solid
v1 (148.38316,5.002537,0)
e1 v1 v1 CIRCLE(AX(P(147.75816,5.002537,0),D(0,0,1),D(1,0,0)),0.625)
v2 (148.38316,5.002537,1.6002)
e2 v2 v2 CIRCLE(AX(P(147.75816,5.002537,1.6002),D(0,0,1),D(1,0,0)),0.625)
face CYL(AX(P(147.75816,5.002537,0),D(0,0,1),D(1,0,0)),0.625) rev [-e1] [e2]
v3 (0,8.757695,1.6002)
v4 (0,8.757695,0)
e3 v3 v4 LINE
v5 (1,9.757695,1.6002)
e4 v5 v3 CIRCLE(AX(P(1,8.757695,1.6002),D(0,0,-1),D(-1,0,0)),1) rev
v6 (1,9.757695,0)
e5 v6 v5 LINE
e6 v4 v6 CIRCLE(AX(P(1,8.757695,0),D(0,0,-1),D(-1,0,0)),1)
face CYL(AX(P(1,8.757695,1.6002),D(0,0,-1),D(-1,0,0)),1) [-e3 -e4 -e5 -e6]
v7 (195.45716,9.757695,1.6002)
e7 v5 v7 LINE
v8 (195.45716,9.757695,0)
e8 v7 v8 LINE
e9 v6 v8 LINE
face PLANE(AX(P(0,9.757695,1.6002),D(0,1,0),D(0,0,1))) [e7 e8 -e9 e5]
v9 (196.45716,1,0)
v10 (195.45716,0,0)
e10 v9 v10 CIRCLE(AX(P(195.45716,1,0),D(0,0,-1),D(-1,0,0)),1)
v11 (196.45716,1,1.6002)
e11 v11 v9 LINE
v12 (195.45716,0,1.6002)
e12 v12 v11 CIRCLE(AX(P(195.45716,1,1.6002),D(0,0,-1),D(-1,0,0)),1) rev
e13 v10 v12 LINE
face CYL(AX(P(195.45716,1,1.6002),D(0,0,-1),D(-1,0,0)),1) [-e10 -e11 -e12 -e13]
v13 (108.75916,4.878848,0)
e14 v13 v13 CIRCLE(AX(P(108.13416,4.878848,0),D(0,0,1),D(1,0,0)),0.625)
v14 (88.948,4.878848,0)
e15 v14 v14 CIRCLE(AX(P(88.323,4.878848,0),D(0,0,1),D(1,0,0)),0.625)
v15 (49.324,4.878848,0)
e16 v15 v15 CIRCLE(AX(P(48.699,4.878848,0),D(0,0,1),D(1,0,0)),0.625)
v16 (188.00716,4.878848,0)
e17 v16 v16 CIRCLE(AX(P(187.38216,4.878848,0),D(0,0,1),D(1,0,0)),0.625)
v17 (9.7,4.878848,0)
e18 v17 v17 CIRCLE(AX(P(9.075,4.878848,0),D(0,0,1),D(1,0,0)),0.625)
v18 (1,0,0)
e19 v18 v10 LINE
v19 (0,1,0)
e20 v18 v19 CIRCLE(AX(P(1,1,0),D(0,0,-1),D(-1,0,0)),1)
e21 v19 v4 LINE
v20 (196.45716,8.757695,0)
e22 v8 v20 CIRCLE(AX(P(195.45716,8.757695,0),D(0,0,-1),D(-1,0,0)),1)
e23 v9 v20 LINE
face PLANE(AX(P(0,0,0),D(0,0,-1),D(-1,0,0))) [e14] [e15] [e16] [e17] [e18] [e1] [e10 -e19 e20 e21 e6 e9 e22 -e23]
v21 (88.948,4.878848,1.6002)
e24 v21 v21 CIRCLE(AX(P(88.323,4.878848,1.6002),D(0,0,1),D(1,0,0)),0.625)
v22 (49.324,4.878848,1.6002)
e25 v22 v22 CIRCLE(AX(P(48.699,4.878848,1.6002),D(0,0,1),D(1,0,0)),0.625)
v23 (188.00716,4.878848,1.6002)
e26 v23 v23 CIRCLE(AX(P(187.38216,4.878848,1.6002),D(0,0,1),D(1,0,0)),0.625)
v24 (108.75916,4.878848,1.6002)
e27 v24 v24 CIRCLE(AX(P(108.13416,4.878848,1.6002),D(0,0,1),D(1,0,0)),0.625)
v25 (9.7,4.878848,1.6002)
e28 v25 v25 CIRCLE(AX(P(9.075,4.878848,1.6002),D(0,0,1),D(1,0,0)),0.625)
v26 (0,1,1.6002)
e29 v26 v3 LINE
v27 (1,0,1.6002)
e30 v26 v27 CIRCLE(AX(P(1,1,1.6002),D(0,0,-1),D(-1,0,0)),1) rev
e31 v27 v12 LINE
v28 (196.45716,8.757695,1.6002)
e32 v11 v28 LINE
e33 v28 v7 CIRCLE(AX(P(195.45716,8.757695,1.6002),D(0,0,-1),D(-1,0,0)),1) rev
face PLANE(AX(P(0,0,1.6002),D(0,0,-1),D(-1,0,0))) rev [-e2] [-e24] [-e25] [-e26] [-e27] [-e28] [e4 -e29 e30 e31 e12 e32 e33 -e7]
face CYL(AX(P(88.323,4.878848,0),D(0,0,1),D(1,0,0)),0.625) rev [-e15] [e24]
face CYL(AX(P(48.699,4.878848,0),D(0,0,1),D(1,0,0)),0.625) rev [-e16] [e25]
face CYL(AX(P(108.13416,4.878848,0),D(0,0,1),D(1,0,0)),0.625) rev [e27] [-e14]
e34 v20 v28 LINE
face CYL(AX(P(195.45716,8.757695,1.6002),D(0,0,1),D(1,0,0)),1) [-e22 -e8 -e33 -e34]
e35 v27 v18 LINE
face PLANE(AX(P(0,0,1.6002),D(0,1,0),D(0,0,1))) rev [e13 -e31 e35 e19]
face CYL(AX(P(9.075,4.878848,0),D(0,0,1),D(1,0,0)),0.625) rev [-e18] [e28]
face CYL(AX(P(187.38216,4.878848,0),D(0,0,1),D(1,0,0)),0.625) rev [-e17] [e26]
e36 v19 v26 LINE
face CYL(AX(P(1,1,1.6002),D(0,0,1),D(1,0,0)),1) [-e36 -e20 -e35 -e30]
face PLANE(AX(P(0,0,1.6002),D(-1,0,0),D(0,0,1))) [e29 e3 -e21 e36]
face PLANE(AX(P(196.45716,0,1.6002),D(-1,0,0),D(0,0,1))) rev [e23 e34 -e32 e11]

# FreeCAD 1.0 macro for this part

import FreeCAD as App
import Part
import Sketcher


def edges_at(feature, points):
    """Names of the edges that pass closest to the given points."""
    edges = feature.Shape.Edges
    near = lambda p: min(range(len(edges)), key=lambda i: edges[i].distToShape(Part.Vertex(*p))[0])
    return sorted({f"Edge{near(p) + 1}" for p in points})


def add_polygon(sketch, points):
    """Adds a closed chain of lines whose ends are joined by coincident constraints."""
    first, n = sketch.GeometryCount, len(points)
    for a, b in zip(points, points[1:] + points[:1]):
        sketch.addGeometry(Part.LineSegment(App.Vector(*a, 0), App.Vector(*b, 0)), False)
    for i in range(n):
        sketch.addConstraint(Sketcher.Constraint("Coincident", first + i, 2, first + (i + 1) % n, 1))

doc = App.newDocument("Part")
body = doc.addObject("PartDesign::Body", "Body")

sketch1 = body.newObject("Sketcher::SketchObject", "Sketch")
sketch1.AttachmentSupport = (doc.getObject("XY_Plane"), [""])
sketch1.MapMode = "FlatFace"
add_polygon(sketch1, [(0, 10), (0, 0), (196, 0), (196, 10)])
sketch1.addConstraint([
    Sketcher.Constraint("Vertical", 0),
    Sketcher.Constraint("Horizontal", 1),
    Sketcher.Constraint("Vertical", 2),
    Sketcher.Constraint("Horizontal", 3),
    Sketcher.Constraint("Coincident", 0, 2, -1, 1),
    Sketcher.Constraint("DistanceX", 1, 1, 1, 2, 196.45716),
    Sketcher.Constraint("DistanceY", 0, 2, 0, 1, 9.757695),
])
pad1 = body.newObject("PartDesign::Pad", "Pad")
pad1.Profile = sketch1
pad1.Length = 1.6002

sketch2 = body.newObject("Sketcher::SketchObject", "Sketch001")
sketch2.AttachmentSupport = (doc.getObject("XY_Plane"), [""])
sketch2.MapMode = "FlatFace"
sketch2.AttachmentOffset = App.Placement(App.Vector(0, 0, 1.6002), App.Rotation())
sketch2.addGeometry([
    Part.Circle(App.Vector(9.1, 4.9, 0), App.Vector(0, 0, 1), 0.6),
    Part.Circle(App.Vector(48.7, 4.9, 0), App.Vector(0, 0, 1), 0.6),
    Part.Circle(App.Vector(88.3, 4.9, 0), App.Vector(0, 0, 1), 0.6),
    Part.Circle(App.Vector(187.4, 4.9, 0), App.Vector(0, 0, 1), 0.6),
    Part.Circle(App.Vector(147.8, 5, 0), App.Vector(0, 0, 1), 0.6),
    Part.Circle(App.Vector(108.1, 4.9, 0), App.Vector(0, 0, 1), 0.6),
], False)
sketch2.addConstraint([
    Sketcher.Constraint("Equal", 0, 1),
    Sketcher.Constraint("Equal", 1, 2),
    Sketcher.Constraint("Equal", 2, 3),
    Sketcher.Constraint("Equal", 3, 4),
    Sketcher.Constraint("Equal", 4, 5),
    Sketcher.Constraint("Horizontal", 0, 3, 1, 3),
    Sketcher.Constraint("Horizontal", 1, 3, 2, 3),
    Sketcher.Constraint("Horizontal", 2, 3, 3, 3),
    Sketcher.Constraint("Horizontal", 3, 3, 5, 3),
    Sketcher.Constraint("Diameter", 0, 1.25),
    Sketcher.Constraint("DistanceX", -1, 1, 0, 3, 9.075),
    Sketcher.Constraint("DistanceX", -1, 1, 1, 3, 48.699),
    Sketcher.Constraint("DistanceX", -1, 1, 2, 3, 88.323),
    Sketcher.Constraint("DistanceX", 4, 3, 3, 3, 39.624),
    Sketcher.Constraint("DistanceX", 5, 3, 4, 3, 39.624),
    Sketcher.Constraint("DistanceX", -1, 1, 3, 3, 187.38216),
    Sketcher.Constraint("DistanceY", 3, 3, 4, 3, 0.123689),
    Sketcher.Constraint("DistanceY", -1, 1, 0, 3, 4.878848),
])
pocket1 = body.newObject("PartDesign::Pocket", "Pocket")
pocket1.Profile = sketch2
pocket1.Type = "ThroughAll"
doc.recompute()

fillet = body.newObject("PartDesign::Fillet", "Fillet")
fillet.Base = (pocket1, edges_at(pocket1, [
    (0, 0, 0.8),
    (196.457, 0, 0.8),
    (196.457, 9.758, 0.8),
    (0, 9.758, 0.8),
]))
fillet.Radius = 1

doc.recompute()
